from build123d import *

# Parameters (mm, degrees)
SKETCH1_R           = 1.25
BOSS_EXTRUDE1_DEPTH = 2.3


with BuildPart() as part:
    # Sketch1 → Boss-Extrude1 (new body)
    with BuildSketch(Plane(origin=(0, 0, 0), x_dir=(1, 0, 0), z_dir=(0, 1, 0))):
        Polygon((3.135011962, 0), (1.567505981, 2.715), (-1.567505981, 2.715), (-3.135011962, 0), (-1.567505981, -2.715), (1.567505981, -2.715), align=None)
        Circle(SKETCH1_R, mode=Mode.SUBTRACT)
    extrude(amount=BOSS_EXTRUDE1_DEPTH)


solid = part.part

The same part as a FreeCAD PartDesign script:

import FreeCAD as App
import Part
import Sketcher
from FreeCAD import Vector
Q = App.Units.Quantity

doc = App.newDocument("Part")
body = doc.addObject("PartDesign::Body", "Body")

# Sketch on XZ plane
sketch1 = body.newObject("Sketcher::SketchObject", "Sketch")
sketch1.AttachmentSupport = (doc.getObject("XZ_Plane"), [""])
sketch1.MapMode = "FlatFace"
sketch1.addGeometry([
    Part.LineSegment(Vector(3.1, 0, 0), Vector(1.6, -2.7, 0)),  # 0
    Part.LineSegment(Vector(1.6, -2.7, 0), Vector(-1.6, -2.7, 0)),  # 1
    Part.LineSegment(Vector(-1.6, -2.7, 0), Vector(-3.1, 0, 0)),  # 2
    Part.LineSegment(Vector(-3.1, 0, 0), Vector(-1.6, 2.7, 0)),  # 3
    Part.LineSegment(Vector(-1.6, 2.7, 0), Vector(1.6, 2.7, 0)),  # 4
    Part.LineSegment(Vector(1.6, 2.7, 0), Vector(3.1, 0, 0)),  # 5
    Part.Circle(Vector(0, 0, 0), Vector(0, 0, 1), 1.2),  # 6
], False)
sketch1.addConstraint([
    Sketcher.Constraint("Coincident", 0, 2, 1, 1),
    Sketcher.Constraint("Coincident", 1, 2, 2, 1),
    Sketcher.Constraint("Coincident", 2, 2, 3, 1),
    Sketcher.Constraint("Coincident", 3, 2, 4, 1),
    Sketcher.Constraint("Coincident", 4, 2, 5, 1),
    Sketcher.Constraint("Coincident", 5, 2, 0, 1),
    Sketcher.Constraint("Horizontal", 1),
    Sketcher.Constraint("Horizontal", 4),
    Sketcher.Constraint("Coincident", 6, 3, -1, 1),
    Sketcher.Constraint("Symmetric", 0, 2, 3, 2, -1, 1),
    Sketcher.Constraint("Symmetric", 2, 2, 5, 2, -1, 1),
    Sketcher.Constraint("PointOnObject", 2, 2, -1),
    Sketcher.Constraint("Parallel", 2, 5),
    Sketcher.Constraint("Vertical", 1, 2, 3, 2),
    Sketcher.Constraint("Diameter", 6, 2.5),
    Sketcher.Constraint("Angle", 0, Q("-120 deg")),
    Sketcher.Constraint("DistanceY", 1, 2, 3, 2, 5.43),
    Sketcher.Constraint("DistanceX", 1, 2, 1, 1, 3.135012),
])
pad1 = body.newObject("PartDesign::Pad", "Pad")
pad1.Profile = sketch1
pad1.Length = 2.3
pad1.Reversed = True

doc.recompute()
